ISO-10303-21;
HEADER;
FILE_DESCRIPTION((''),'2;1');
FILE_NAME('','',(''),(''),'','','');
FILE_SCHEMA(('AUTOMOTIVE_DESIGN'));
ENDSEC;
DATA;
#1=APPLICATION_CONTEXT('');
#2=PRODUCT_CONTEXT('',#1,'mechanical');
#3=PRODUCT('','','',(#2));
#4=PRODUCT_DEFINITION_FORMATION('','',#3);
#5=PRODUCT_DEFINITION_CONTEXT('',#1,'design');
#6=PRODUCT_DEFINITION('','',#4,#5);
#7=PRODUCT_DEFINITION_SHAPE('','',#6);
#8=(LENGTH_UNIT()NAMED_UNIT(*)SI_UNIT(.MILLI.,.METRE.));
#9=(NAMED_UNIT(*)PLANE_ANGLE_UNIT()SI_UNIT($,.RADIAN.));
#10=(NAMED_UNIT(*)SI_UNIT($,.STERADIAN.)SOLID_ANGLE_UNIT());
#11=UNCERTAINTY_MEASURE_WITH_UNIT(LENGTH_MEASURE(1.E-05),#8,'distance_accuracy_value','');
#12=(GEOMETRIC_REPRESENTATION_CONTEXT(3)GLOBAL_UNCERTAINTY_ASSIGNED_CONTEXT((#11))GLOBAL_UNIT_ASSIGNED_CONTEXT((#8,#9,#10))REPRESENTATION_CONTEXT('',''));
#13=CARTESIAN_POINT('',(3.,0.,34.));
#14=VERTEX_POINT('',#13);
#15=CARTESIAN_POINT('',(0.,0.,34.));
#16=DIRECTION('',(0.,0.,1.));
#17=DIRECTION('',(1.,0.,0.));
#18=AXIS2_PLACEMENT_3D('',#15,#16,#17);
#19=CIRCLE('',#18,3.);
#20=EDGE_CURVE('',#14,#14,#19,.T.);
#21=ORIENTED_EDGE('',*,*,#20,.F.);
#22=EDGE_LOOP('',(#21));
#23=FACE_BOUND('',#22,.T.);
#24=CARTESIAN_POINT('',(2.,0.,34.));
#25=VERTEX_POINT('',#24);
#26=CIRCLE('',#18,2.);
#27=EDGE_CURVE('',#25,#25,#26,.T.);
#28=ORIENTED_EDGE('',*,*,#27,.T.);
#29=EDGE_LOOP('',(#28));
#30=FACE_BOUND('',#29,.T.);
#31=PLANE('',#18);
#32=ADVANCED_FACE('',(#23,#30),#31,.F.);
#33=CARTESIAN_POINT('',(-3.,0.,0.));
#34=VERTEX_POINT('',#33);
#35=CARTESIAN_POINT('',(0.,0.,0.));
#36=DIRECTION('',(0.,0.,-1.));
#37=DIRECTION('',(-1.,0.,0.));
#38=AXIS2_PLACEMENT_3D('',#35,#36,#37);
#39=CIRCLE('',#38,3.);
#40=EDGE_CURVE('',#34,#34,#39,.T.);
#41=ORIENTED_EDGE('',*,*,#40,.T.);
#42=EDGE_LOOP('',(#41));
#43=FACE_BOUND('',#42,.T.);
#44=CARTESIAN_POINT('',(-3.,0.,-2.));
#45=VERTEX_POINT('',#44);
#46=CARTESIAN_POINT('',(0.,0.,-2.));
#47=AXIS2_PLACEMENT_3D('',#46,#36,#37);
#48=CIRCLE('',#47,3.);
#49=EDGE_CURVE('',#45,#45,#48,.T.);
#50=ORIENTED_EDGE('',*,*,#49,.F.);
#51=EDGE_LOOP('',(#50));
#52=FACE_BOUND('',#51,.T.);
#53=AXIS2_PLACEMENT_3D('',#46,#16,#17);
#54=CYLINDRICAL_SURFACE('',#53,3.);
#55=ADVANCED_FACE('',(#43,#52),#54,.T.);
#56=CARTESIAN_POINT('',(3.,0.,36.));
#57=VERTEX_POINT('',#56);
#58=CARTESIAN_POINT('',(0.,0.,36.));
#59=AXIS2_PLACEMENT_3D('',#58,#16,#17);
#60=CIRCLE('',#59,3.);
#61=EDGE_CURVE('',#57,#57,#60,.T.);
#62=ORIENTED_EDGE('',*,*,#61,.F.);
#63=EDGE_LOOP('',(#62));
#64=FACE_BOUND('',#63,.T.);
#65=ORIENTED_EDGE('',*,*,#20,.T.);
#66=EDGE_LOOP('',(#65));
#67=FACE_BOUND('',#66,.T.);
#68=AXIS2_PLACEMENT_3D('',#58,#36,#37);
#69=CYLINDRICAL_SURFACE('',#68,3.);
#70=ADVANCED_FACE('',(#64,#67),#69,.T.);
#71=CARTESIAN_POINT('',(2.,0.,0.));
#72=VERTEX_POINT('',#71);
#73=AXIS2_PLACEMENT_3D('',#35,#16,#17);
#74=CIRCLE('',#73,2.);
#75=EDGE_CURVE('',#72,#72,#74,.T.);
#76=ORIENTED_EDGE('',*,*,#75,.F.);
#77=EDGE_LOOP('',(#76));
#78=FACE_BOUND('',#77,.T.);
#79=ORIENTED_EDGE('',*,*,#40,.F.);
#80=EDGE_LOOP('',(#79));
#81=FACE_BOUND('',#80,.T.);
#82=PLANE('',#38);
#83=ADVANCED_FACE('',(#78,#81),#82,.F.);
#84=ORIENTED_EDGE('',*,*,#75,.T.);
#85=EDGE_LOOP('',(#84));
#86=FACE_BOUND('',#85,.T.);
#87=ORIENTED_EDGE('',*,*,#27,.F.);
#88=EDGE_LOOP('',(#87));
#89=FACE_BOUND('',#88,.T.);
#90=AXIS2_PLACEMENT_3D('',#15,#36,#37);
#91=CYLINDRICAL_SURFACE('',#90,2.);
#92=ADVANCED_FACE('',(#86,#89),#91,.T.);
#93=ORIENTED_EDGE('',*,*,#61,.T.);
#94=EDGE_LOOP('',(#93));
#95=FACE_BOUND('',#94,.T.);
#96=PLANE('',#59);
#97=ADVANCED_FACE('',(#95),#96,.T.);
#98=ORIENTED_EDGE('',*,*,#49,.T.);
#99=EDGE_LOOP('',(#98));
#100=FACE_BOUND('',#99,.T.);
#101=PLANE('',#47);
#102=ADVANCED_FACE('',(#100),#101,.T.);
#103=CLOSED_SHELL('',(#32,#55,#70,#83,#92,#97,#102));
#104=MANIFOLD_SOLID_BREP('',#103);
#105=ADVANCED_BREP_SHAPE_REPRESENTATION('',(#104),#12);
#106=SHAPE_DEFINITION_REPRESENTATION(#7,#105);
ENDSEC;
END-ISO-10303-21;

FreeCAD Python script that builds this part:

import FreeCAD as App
import Part
import Sketcher

doc = App.newDocument("Part")
body = doc.addObject("PartDesign::Body", "Body")

sketch1 = body.newObject("Sketcher::SketchObject", "Sketch")
sketch1.AttachmentSupport = (doc.getObject("XY_Plane"), [""])
sketch1.MapMode = "FlatFace"
sketch1.addGeometry(Part.Circle(App.Vector(0, 0, 0), App.Vector(0, 0, 1), 2), False)
sketch1.addConstraint([
    Sketcher.Constraint("Coincident", 0, 3, -1, 1),
    Sketcher.Constraint("Diameter", 0, 4.0),
])
pad1 = body.newObject("PartDesign::Pad", "Pad")
pad1.Profile = sketch1
pad1.Length = 34

sketch2 = body.newObject("Sketcher::SketchObject", "Sketch001")
sketch2.AttachmentSupport = (doc.getObject("XY_Plane"), [""])
sketch2.MapMode = "FlatFace"
sketch2.AttachmentOffset = App.Placement(App.Vector(0, 0, 34), App.Rotation())
sketch2.addGeometry(Part.Circle(App.Vector(0, 0, 0), App.Vector(0, 0, 1), 3), False)
sketch2.addConstraint([
    Sketcher.Constraint("Coincident", 0, 3, -1, 1),
    Sketcher.Constraint("Diameter", 0, 6.0),
])
pad2 = body.newObject("PartDesign::Pad", "Pad001")
pad2.Profile = sketch2
pad2.Length = 2

sketch3 = body.newObject("Sketcher::SketchObject", "Sketch002")
sketch3.AttachmentSupport = (doc.getObject("XY_Plane"), [""])
sketch3.MapMode = "FlatFace"
sketch3.addGeometry(Part.Circle(App.Vector(0, 0, 0), App.Vector(0, 0, 1), 3), False)
sketch3.addConstraint([
    Sketcher.Constraint("Coincident", 0, 3, -1, 1),
    Sketcher.Constraint("Diameter", 0, 6.0),
])
pad3 = body.newObject("PartDesign::Pad", "Pad002")
pad3.Profile = sketch3
pad3.Length = 2
pad3.Reversed = True

doc.recompute()
